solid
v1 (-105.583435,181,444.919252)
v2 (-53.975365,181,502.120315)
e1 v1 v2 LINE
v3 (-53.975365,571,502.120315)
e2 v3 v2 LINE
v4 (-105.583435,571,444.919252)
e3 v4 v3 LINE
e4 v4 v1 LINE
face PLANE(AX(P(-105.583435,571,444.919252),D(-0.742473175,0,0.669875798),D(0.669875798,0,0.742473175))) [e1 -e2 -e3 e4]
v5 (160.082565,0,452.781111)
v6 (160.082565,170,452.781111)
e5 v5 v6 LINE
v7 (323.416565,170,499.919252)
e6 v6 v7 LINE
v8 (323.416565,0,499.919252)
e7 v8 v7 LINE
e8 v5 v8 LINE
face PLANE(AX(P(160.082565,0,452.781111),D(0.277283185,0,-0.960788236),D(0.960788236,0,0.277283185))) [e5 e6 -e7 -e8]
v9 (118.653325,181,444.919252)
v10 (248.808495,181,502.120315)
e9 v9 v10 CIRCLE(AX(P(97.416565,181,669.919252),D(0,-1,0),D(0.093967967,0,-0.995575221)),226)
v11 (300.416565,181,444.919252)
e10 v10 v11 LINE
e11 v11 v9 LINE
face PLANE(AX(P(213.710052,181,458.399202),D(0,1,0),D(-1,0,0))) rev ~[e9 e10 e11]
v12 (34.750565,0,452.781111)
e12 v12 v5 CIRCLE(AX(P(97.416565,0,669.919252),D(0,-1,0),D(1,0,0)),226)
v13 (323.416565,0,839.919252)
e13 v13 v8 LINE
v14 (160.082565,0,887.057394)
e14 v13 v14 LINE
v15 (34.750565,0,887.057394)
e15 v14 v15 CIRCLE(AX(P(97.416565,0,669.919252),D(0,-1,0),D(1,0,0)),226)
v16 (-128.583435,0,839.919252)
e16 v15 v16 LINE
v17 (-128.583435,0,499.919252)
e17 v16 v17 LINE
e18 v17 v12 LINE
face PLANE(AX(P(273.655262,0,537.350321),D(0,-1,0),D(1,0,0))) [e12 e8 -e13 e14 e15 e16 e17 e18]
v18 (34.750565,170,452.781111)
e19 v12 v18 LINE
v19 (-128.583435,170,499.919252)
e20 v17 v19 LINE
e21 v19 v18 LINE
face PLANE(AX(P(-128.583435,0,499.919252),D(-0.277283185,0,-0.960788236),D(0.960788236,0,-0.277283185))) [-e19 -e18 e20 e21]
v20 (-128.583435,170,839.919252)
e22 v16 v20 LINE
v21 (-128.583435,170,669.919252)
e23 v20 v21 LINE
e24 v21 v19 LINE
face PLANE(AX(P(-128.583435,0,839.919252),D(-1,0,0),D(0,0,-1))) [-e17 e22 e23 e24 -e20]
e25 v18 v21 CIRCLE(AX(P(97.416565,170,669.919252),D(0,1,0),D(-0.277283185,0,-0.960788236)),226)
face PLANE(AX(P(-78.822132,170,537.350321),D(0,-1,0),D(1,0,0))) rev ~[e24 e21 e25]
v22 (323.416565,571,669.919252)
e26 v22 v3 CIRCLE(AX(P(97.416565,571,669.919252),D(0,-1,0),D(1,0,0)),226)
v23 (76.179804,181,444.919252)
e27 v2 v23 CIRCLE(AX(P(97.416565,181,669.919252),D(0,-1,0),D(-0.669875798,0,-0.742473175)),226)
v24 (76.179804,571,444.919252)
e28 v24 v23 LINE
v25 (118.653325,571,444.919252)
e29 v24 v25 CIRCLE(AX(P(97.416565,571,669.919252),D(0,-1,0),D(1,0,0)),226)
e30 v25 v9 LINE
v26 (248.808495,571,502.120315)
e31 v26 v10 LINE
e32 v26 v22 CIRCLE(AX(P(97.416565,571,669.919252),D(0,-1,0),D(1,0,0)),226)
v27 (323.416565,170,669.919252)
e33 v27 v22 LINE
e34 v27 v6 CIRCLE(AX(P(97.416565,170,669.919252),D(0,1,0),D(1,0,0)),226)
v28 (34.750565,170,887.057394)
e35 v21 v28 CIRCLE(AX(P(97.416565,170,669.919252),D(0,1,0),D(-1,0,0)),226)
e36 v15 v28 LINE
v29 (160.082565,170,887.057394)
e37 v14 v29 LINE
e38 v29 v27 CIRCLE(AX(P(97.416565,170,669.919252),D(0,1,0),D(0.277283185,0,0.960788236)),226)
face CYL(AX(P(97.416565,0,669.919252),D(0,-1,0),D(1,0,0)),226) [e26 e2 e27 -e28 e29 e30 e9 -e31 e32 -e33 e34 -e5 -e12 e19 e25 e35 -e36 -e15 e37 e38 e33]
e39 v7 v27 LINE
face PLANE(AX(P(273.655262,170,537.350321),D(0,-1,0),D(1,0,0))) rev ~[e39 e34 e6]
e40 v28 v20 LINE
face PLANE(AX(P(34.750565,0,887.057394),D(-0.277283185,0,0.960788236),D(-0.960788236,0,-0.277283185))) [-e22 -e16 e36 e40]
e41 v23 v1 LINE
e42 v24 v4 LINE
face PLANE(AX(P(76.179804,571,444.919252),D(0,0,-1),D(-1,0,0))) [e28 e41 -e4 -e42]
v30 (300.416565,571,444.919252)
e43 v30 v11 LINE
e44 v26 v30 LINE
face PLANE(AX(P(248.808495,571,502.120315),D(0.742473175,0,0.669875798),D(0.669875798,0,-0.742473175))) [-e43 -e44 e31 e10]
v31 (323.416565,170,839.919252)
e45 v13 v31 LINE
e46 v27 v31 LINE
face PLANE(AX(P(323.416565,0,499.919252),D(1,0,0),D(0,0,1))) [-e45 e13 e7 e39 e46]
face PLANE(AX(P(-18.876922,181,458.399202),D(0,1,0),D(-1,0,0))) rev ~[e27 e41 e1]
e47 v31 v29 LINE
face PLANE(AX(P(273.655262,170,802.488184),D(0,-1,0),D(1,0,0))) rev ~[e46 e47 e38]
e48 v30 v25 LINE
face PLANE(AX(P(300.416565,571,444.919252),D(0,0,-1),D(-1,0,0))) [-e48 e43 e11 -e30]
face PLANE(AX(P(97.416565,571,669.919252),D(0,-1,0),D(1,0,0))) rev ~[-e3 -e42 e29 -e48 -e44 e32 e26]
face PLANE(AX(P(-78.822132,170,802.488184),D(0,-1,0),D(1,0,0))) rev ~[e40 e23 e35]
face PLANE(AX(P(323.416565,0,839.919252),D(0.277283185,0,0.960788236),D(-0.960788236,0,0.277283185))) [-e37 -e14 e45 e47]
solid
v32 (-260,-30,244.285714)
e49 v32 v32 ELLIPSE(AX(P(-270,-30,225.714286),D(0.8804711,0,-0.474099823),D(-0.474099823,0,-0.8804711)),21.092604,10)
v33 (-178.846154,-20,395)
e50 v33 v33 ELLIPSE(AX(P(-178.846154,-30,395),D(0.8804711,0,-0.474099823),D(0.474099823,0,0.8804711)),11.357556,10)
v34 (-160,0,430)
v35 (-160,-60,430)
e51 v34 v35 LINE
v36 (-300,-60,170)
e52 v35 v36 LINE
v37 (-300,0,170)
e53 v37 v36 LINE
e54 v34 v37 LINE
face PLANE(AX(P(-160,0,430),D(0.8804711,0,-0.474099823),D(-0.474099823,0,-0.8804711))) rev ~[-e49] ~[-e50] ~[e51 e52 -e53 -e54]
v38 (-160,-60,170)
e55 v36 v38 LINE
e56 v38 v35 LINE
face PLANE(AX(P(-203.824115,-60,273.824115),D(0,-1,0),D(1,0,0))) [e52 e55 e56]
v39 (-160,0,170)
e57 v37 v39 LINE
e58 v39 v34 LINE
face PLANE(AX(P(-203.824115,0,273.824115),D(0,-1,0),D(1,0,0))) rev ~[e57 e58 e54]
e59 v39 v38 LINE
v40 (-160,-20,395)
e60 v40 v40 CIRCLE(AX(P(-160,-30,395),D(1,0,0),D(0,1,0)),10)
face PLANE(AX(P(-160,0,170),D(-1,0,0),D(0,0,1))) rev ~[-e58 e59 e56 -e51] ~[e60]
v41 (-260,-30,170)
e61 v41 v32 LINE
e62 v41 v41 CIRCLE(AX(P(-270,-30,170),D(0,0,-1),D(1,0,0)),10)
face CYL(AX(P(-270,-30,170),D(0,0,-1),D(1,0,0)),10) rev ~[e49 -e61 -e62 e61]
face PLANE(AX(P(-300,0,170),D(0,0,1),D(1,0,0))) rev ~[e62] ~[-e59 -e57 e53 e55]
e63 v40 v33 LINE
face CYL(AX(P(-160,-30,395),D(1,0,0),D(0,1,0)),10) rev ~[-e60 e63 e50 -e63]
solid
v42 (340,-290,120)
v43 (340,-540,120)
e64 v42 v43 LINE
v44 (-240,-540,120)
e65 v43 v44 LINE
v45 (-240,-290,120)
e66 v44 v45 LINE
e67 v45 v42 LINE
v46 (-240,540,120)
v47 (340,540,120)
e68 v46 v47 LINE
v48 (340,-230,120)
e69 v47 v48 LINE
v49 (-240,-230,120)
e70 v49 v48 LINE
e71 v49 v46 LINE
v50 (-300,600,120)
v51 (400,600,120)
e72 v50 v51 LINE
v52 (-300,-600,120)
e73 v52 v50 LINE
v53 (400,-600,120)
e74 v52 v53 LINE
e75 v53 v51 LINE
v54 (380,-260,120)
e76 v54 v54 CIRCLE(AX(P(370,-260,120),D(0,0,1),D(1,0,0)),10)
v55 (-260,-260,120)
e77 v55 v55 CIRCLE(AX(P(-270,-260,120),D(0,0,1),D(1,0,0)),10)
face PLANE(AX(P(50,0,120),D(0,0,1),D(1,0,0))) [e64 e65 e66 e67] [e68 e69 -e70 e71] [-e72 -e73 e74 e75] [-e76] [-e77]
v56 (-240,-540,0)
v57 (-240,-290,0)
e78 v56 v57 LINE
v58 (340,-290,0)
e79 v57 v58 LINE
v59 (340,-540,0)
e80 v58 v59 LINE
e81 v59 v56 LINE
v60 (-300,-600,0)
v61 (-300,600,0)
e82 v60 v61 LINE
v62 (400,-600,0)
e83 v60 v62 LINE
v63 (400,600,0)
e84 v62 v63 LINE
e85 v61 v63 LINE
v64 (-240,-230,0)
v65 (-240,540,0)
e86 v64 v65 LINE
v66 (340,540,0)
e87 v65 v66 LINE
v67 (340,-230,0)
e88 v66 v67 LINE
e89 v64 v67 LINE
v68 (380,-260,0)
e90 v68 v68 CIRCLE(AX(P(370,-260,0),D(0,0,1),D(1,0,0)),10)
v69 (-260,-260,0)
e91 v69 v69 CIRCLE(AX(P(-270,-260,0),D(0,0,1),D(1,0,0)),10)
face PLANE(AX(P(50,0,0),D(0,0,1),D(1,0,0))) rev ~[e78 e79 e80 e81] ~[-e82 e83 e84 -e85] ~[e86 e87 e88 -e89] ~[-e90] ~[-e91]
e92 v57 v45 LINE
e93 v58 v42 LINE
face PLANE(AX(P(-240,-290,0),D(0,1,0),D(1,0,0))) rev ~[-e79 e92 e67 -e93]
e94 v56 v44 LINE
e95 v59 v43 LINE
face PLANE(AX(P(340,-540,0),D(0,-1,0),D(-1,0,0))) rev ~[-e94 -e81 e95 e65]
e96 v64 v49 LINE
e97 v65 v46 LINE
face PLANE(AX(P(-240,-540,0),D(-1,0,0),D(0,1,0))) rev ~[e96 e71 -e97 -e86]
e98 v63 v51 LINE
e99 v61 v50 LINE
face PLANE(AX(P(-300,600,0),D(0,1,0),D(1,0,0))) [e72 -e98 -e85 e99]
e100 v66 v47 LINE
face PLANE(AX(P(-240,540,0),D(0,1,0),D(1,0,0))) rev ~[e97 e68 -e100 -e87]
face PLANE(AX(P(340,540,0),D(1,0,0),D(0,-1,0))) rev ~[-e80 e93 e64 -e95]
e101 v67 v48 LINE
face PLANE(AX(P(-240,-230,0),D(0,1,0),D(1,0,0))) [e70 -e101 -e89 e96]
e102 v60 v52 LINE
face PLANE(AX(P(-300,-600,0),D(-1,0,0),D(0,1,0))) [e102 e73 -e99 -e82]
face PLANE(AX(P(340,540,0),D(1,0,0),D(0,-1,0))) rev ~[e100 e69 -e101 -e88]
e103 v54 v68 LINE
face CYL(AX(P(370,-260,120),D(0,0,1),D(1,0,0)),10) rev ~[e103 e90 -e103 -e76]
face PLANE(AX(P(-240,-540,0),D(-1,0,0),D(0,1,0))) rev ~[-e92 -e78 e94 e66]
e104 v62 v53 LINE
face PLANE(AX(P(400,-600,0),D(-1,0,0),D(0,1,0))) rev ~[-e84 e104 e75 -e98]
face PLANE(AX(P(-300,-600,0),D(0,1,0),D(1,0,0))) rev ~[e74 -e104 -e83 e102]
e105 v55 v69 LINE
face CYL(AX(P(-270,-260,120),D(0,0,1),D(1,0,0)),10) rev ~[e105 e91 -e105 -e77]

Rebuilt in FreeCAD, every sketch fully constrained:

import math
import FreeCAD as App
import Part
import Sketcher

V = App.Vector
Q = App.Units.Quantity

doc = App.newDocument("Part")
body = doc.addObject("PartDesign::Body", "Body")

# Sketch on XY plane
sketch1 = body.newObject("Sketcher::SketchObject", "Sketch")
sketch1.AttachmentSupport = (doc.getObject("XY_Plane"), [""])
sketch1.MapMode = "FlatFace"
sketch1.addGeometry([
    Part.LineSegment(V(-300, 600, 0), V(-300, -600, 0)),  # 0
    Part.LineSegment(V(-300, -600, 0), V(400, -600, 0)),  # 1
    Part.LineSegment(V(400, -600, 0), V(400, 600, 0)),  # 2
    Part.LineSegment(V(400, 600, 0), V(-300, 600, 0)),  # 3
    Part.LineSegment(V(-240, -540, 0), V(-240, 540, 0)),  # 4
    Part.LineSegment(V(-240, 540, 0), V(340, 540, 0)),  # 5
    Part.LineSegment(V(340, 540, 0), V(340, -540, 0)),  # 6
    Part.LineSegment(V(340, -540, 0), V(-240, -540, 0)),  # 7
], False)
sketch1.addConstraint([
    Sketcher.Constraint("Coincident", 0, 2, 1, 1),
    Sketcher.Constraint("Coincident", 1, 2, 2, 1),
    Sketcher.Constraint("Coincident", 2, 2, 3, 1),
    Sketcher.Constraint("Coincident", 3, 2, 0, 1),
    Sketcher.Constraint("Coincident", 4, 2, 5, 1),
    Sketcher.Constraint("Coincident", 5, 2, 6, 1),
    Sketcher.Constraint("Coincident", 6, 2, 7, 1),
    Sketcher.Constraint("Coincident", 7, 2, 4, 1),
    Sketcher.Constraint("Vertical", 0),
    Sketcher.Constraint("Horizontal", 1),
    Sketcher.Constraint("Vertical", 2),
    Sketcher.Constraint("Horizontal", 3),
    Sketcher.Constraint("Vertical", 4),
    Sketcher.Constraint("Horizontal", 5),
    Sketcher.Constraint("Vertical", 6),
    Sketcher.Constraint("Horizontal", 7),
    Sketcher.Constraint("DistanceX", 1, 1, 1, 2, Q("700 mm")),
    Sketcher.Constraint("DistanceX", 5, 1, 5, 2, Q("580 mm")),
    Sketcher.Constraint("DistanceY", 0, 2, 0, 1, Q("1200 mm")),
    Sketcher.Constraint("DistanceY", 4, 1, 4, 2, Q("1080 mm")),
    Sketcher.Constraint("DistanceX", 0, 2, -1, 1, Q("300 mm")),
    Sketcher.Constraint("DistanceY", 0, 2, -1, 1, Q("600 mm")),
    Sketcher.Constraint("DistanceX", 4, 2, -1, 1, Q("240 mm")),
    Sketcher.Constraint("DistanceY", -1, 1, 4, 2, Q("540 mm")),
])
pad1 = body.newObject("PartDesign::Pad", "Pad")
pad1.Profile = sketch1
pad1.Length = 120

# Sketch on XY plane
sketch2 = body.newObject("Sketcher::SketchObject", "Sketch001")
sketch2.AttachmentSupport = (doc.getObject("XY_Plane"), [""])
sketch2.MapMode = "FlatFace"
sketch2.addGeometry([
    Part.LineSegment(V(-240, -230, 0), V(-240, -290, 0)),
    Part.LineSegment(V(-240, -290, 0), V(340, -290, 0)),
    Part.LineSegment(V(340, -290, 0), V(340, -230, 0)),
    Part.LineSegment(V(340, -230, 0), V(-240, -230, 0)),
], False)
sketch2.addConstraint([
    Sketcher.Constraint("Coincident", 0, 2, 1, 1),
    Sketcher.Constraint("Coincident", 1, 2, 2, 1),
    Sketcher.Constraint("Coincident", 2, 2, 3, 1),
    Sketcher.Constraint("Coincident", 3, 2, 0, 1),
    Sketcher.Constraint("Vertical", 0),
    Sketcher.Constraint("Horizontal", 1),
    Sketcher.Constraint("Vertical", 2),
    Sketcher.Constraint("Horizontal", 3),
    Sketcher.Constraint("DistanceX", 1, 1, 1, 2, Q("580 mm")),
    Sketcher.Constraint("DistanceY", 0, 2, 0, 1, Q("60 mm")),
    Sketcher.Constraint("DistanceX", 0, 2, -1, 1, Q("240 mm")),
    Sketcher.Constraint("DistanceY", 0, 2, -1, 1, Q("290 mm")),
])
pad2 = body.newObject("PartDesign::Pad", "Pad001")
pad2.Profile = sketch2
pad2.Length = 120

# Sketch on XY plane
sketch3 = body.newObject("Sketcher::SketchObject", "Sketch002")
sketch3.AttachmentSupport = (doc.getObject("XY_Plane"), [""])
sketch3.MapMode = "FlatFace"
sketch3.AttachmentOffset = App.Placement(V(0, 0, 120), App.Rotation())
sketch3.addGeometry([
    Part.Circle(V(-270, -260, 0), V(0, 0, 1), 10),
    Part.Circle(V(370, -260, 0), V(0, 0, 1), 10),
], False)
sketch3.addConstraint([
    Sketcher.Constraint("Equal", 0, 1),
    Sketcher.Constraint("Horizontal", 0, 3, 1, 3),
    Sketcher.Constraint("Diameter", 0, Q("20 mm")),
    Sketcher.Constraint("DistanceX", 0, 3, -1, 1, Q("270 mm")),
    Sketcher.Constraint("DistanceY", 0, 3, -1, 1, Q("260 mm")),
    Sketcher.Constraint("DistanceX", -1, 1, 1, 3, Q("370 mm")),
])
pocket1 = body.newObject("PartDesign::Pocket", "Pocket")
pocket1.Profile = sketch3
pocket1.Length = 200
body2 = doc.addObject("PartDesign::Body", "Body001")

# Sketch on XZ plane
sketch4 = body2.newObject("Sketcher::SketchObject", "Sketch003")
sketch4.AttachmentSupport = (doc.getObject("XZ_Plane001"), [""])
sketch4.MapMode = "FlatFace"
sketch4.addGeometry([
    Part.LineSegment(V(-300, 170, 0), V(-160, 170, 0)),
    Part.LineSegment(V(-160, 170, 0), V(-160, 430, 0)),
    Part.LineSegment(V(-160, 430, 0), V(-300, 170, 0)),
], False)
sketch4.addConstraint([
    Sketcher.Constraint("Coincident", 0, 2, 1, 1),
    Sketcher.Constraint("Coincident", 1, 2, 2, 1),
    Sketcher.Constraint("Coincident", 2, 2, 0, 1),
    Sketcher.Constraint("Horizontal", 0),
    Sketcher.Constraint("Vertical", 1),
    Sketcher.Constraint("DistanceX", 0, 1, 0, 2, Q("140 mm")),
    Sketcher.Constraint("DistanceY", 1, 1, 1, 2, Q("260 mm")),
    Sketcher.Constraint("DistanceX", 0, 2, -1, 1, Q("160 mm")),
    Sketcher.Constraint("DistanceY", -1, 1, 0, 2, Q("170 mm")),
])
pad3 = body2.newObject("PartDesign::Pad", "Pad002")
pad3.Profile = sketch4
pad3.Length = 60

# Sketch on XY plane
sketch5 = body2.newObject("Sketcher::SketchObject", "Sketch004")
sketch5.AttachmentSupport = (doc.getObject("XY_Plane001"), [""])
sketch5.MapMode = "FlatFace"
sketch5.AttachmentOffset = App.Placement(V(0, 0, 170), App.Rotation())
sketch5.addGeometry(Part.Circle(V(-270, -30, 0), V(0, 0, 1), 10), False)
sketch5.addConstraint([
    Sketcher.Constraint("Diameter", 0, Q("20 mm")),
    Sketcher.Constraint("DistanceX", 0, 3, -1, 1, Q("270 mm")),
    Sketcher.Constraint("DistanceY", 0, 3, -1, 1, Q("30 mm")),
])
pocket2 = body2.newObject("PartDesign::Pocket", "Pocket001")
pocket2.Profile = sketch5
pocket2.Length = 100
pocket2.Reversed = True

# Sketch on YZ plane
sketch6 = body2.newObject("Sketcher::SketchObject", "Sketch005")
sketch6.AttachmentSupport = (doc.getObject("YZ_Plane001"), [""])
sketch6.MapMode = "FlatFace"
sketch6.AttachmentOffset = App.Placement(V(0, 0, -160), App.Rotation())
sketch6.addGeometry(Part.Circle(V(-30, 395, 0), V(0, 0, 1), 10), False)
sketch6.addConstraint([
    Sketcher.Constraint("Diameter", 0, Q("20 mm")),
    Sketcher.Constraint("DistanceX", 0, 3, -1, 1, Q("30 mm")),
    Sketcher.Constraint("DistanceY", -1, 1, 0, 3, Q("395 mm")),
])
pocket3 = body2.newObject("PartDesign::Pocket", "Pocket002")
pocket3.Profile = sketch6
pocket3.Length = 50
body3 = doc.addObject("PartDesign::Body", "Body002")

# Sketch on XZ plane
sketch7 = body3.newObject("Sketcher::SketchObject", "Sketch006")
sketch7.AttachmentSupport = (doc.getObject("XZ_Plane002"), [""])
sketch7.MapMode = "FlatFace"
sketch7.addGeometry(Part.Circle(V(97, 670, 0), V(0, 0, 1), 226), False)
sketch7.addConstraint([
    Sketcher.Constraint("Diameter", 0, Q("452 mm")),
    Sketcher.Constraint("DistanceX", -1, 1, 0, 3, Q("97.416565 mm")),
    Sketcher.Constraint("DistanceY", -1, 1, 0, 3, Q("669.919252 mm")),
])
pad4 = body3.newObject("PartDesign::Pad", "Pad003")
pad4.Profile = sketch7
pad4.Length = 571
pad4.Reversed = True

# Sketch on XZ plane
sketch8 = body3.newObject("Sketcher::SketchObject", "Sketch007")
sketch8.AttachmentSupport = (doc.getObject("XZ_Plane002"), [""])
sketch8.MapMode = "FlatFace"
sketch8.addGeometry([
    Part.LineSegment(V(323, 500, 0), V(323, 670, 0)),  # 0
    Part.ArcOfCircle(Part.Circle(V(97, 670, 0), V(0, 0, 1), 226), math.radians(-74), math.radians(0)),  # 1
    Part.LineSegment(V(160, 453, 0), V(323, 500, 0)),  # 2
    Part.ArcOfCircle(Part.Circle(V(97, 670, 0), V(0, 0, 1), 226), math.radians(0), math.radians(74)),  # 3
    Part.LineSegment(V(323, 670, 0), V(323, 840, 0)),  # 4
    Part.LineSegment(V(323, 840, 0), V(160, 887, 0)),  # 5
    Part.ArcOfCircle(Part.Circle(V(97, 670, 0), V(0, 0, 1), 226), math.radians(106), math.radians(180)),  # 6
    Part.LineSegment(V(35, 887, 0), V(-129, 840, 0)),  # 7
    Part.LineSegment(V(-129, 840, 0), V(-129, 670, 0)),  # 8
    Part.LineSegment(V(-129, 500, 0), V(35, 453, 0)),  # 9
    Part.ArcOfCircle(Part.Circle(V(97, 670, 0), V(0, 0, 1), 226), math.radians(180), math.radians(254)),  # 10
    Part.LineSegment(V(-129, 670, 0), V(-129, 500, 0)),  # 11
], False)
sketch8.addConstraint([
    Sketcher.Constraint("Tangent", 0, 2, 1, 2),
    Sketcher.Constraint("Tangent", 1, 1, 2, 1),
    Sketcher.Constraint("Coincident", 2, 2, 0, 1),
    Sketcher.Constraint("Tangent", 3, 1, 4, 1),
    Sketcher.Constraint("Coincident", 4, 2, 5, 1),
    Sketcher.Constraint("Tangent", 5, 2, 3, 2),
    Sketcher.Constraint("Tangent", 6, 1, 7, 1),
    Sketcher.Constraint("Coincident", 7, 2, 8, 1),
    Sketcher.Constraint("Tangent", 8, 2, 6, 2),
    Sketcher.Constraint("Tangent", 9, 2, 10, 2),
    Sketcher.Constraint("Tangent", 10, 1, 11, 1),
    Sketcher.Constraint("Coincident", 11, 2, 9, 1),
    Sketcher.Constraint("Vertical", 0),
    Sketcher.Constraint("Vertical", 4),
    Sketcher.Constraint("Vertical", 8),
    Sketcher.Constraint("Vertical", 11),
    Sketcher.Constraint("Coincident", 3, 3, 1, 3),
    Sketcher.Constraint("Coincident", 6, 3, 1, 3),
    Sketcher.Constraint("Coincident", 10, 3, 1, 3),
    Sketcher.Constraint("Equal", 1, 3),
    Sketcher.Constraint("Equal", 3, 6),
    Sketcher.Constraint("Equal", 6, 10),
    Sketcher.Constraint("Parallel", 2, 7),
    Sketcher.Constraint("Parallel", 5, 9),
    Sketcher.Constraint("Horizontal", 5, 2, 6, 1),
    Sketcher.Constraint("Radius", 1, Q("226 mm")),
    Sketcher.Constraint("DistanceY", 0, 1, 0, 2, Q("170 mm")),
    Sketcher.Constraint("DistanceY", -1, 1, 1, 1, Q("452.781111 mm")),
    Sketcher.Constraint("DistanceX", -1, 1, 1, 3, Q("97.416565 mm")),
])
pad5 = body3.newObject("PartDesign::Pad", "Pad004")
pad5.Profile = sketch8
pad5.Length = 170
pad5.Reversed = True

# Sketch on XZ plane
sketch9 = body3.newObject("Sketcher::SketchObject", "Sketch008")
sketch9.AttachmentSupport = (doc.getObject("XZ_Plane002"), [""])
sketch9.MapMode = "FlatFace"
sketch9.AttachmentOffset = App.Placement(V(0, 0, -571), App.Rotation())
sketch9.addGeometry([
    Part.ArcOfCircle(Part.Circle(V(97, 670, 0), V(0, 0, 1), 226), math.radians(-85), math.radians(-48)),  # 0
    Part.LineSegment(V(249, 502, 0), V(300, 445, 0)),  # 1
    Part.LineSegment(V(300, 445, 0), V(119, 445, 0)),  # 2
    Part.LineSegment(V(-106, 445, 0), V(-54, 502, 0)),  # 3
    Part.ArcOfCircle(Part.Circle(V(97, 670, 0), V(0, 0, 1), 226), math.radians(-132), math.radians(-95)),  # 4
    Part.LineSegment(V(76, 445, 0), V(-106, 445, 0)),  # 5
], False)
sketch9.addConstraint([
    Sketcher.Constraint("Coincident", 0, 2, 1, 1),
    Sketcher.Constraint("Coincident", 1, 2, 2, 1),
    Sketcher.Constraint("Coincident", 2, 2, 0, 1),
    Sketcher.Constraint("Coincident", 3, 2, 4, 1),
    Sketcher.Constraint("Coincident", 4, 2, 5, 1),
    Sketcher.Constraint("Coincident", 5, 2, 3, 1),
    Sketcher.Constraint("Horizontal", 2),
    Sketcher.Constraint("Horizontal", 5),
    Sketcher.Constraint("Coincident", 4, 3, 0, 3),
    Sketcher.Constraint("Equal", 0, 4),
    Sketcher.Constraint("Horizontal", 0, 2, 3, 2),
    Sketcher.Constraint("Horizontal", 2, 2, 4, 2),
    Sketcher.Constraint("Equal", 2, 5),
    Sketcher.Constraint("Radius", 0, Q("226 mm")),
    Sketcher.Constraint("DistanceX", 4, 3, 1, 2, Q("203 mm")),
    Sketcher.Constraint("DistanceY", 1, 2, 4, 3, Q("225 mm")),
    Sketcher.Constraint("DistanceX", 4, 3, 0, 2, Q("151.39193 mm")),
    Sketcher.Constraint("DistanceX", -1, 1, 0, 3, Q("97.416565 mm")),
    Sketcher.Constraint("DistanceY", -1, 1, 0, 3, Q("669.919252 mm")),
])
pad6 = body3.newObject("PartDesign::Pad", "Pad005")
pad6.Profile = sketch9
pad6.Length = 390

doc.recompute()
